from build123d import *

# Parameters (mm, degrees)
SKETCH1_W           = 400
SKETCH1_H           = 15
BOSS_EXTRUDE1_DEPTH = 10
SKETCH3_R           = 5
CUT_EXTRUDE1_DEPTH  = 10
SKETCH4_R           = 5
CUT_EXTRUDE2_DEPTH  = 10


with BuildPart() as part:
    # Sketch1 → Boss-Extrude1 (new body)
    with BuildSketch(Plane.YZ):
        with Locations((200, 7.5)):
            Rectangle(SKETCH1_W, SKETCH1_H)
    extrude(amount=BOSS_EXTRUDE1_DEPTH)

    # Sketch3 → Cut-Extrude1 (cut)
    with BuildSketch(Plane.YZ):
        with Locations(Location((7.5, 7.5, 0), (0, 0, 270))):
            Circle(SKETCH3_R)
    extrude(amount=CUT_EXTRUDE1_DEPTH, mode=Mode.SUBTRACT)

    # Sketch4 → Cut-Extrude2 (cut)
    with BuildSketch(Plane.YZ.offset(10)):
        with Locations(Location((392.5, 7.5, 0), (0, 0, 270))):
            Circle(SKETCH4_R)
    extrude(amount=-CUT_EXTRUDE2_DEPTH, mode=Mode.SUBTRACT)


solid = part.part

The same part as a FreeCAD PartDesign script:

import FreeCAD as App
import Part
import Sketcher

doc = App.newDocument("Part")
body = doc.addObject("PartDesign::Body", "Body")

# Sketch on YZ plane
sketch1 = body.newObject("Sketcher::SketchObject", "Sketch")
sketch1.AttachmentSupport = (doc.getObject("YZ_Plane"), [""])
sketch1.MapMode = "FlatFace"
sketch1.addGeometry(Part.LineSegment(App.Vector(0, 15, 0), App.Vector(0, 0, 0)), False)
sketch1.addGeometry(Part.LineSegment(App.Vector(0, 0, 0), App.Vector(400, 0, 0)), False)
sketch1.addGeometry(Part.LineSegment(App.Vector(400, 0, 0), App.Vector(400, 15, 0)), False)
sketch1.addGeometry(Part.LineSegment(App.Vector(400, 15, 0), App.Vector(0, 15, 0)), False)
sketch1.addConstraint(Sketcher.Constraint("Coincident", 0, 2, 1, 1))
sketch1.addConstraint(Sketcher.Constraint("Coincident", 1, 2, 2, 1))
sketch1.addConstraint(Sketcher.Constraint("Coincident", 2, 2, 3, 1))
sketch1.addConstraint(Sketcher.Constraint("Coincident", 3, 2, 0, 1))
sketch1.addConstraint(Sketcher.Constraint("Vertical", 0))
sketch1.addConstraint(Sketcher.Constraint("Horizontal", 1))
sketch1.addConstraint(Sketcher.Constraint("Vertical", 2))
sketch1.addConstraint(Sketcher.Constraint("Horizontal", 3))
sketch1.addConstraint(Sketcher.Constraint("Coincident", 0, 2, -1, 1))
sketch1.addConstraint(Sketcher.Constraint("DistanceX", 1, 1, 1, 2, 400.0))
sketch1.addConstraint(Sketcher.Constraint("DistanceY", 0, 2, 0, 1, 15.0))
pad1 = body.newObject("PartDesign::Pad", "Pad")
pad1.Profile = sketch1
pad1.Length = 10

# Sketch on YZ plane
sketch2 = body.newObject("Sketcher::SketchObject", "Sketch001")
sketch2.AttachmentSupport = (doc.getObject("YZ_Plane"), [""])
sketch2.MapMode = "FlatFace"
sketch2.addGeometry(Part.Circle(App.Vector(7.5, 7.5, 0), App.Vector(0, 0, 1), 5), False)
sketch2.addConstraint(Sketcher.Constraint("Diameter", 0, 10.0))
sketch2.addConstraint(Sketcher.Constraint("DistanceX", -1, 1, 0, 3, 7.5))
sketch2.addConstraint(Sketcher.Constraint("DistanceY", -1, 1, 0, 3, 7.5))
pocket1 = body.newObject("PartDesign::Pocket", "Pocket")
pocket1.Profile = sketch2
pocket1.Length = 10
pocket1.Reversed = True

# Sketch on YZ plane
sketch3 = body.newObject("Sketcher::SketchObject", "Sketch002")
sketch3.AttachmentSupport = (doc.getObject("YZ_Plane"), [""])
sketch3.MapMode = "FlatFace"
sketch3.AttachmentOffset = App.Placement(App.Vector(0, 0, 10), App.Rotation())
sketch3.addGeometry(Part.Circle(App.Vector(392.5, 7.5, 0), App.Vector(0, 0, 1), 5), False)
sketch3.addConstraint(Sketcher.Constraint("Diameter", 0, 10.0))
sketch3.addConstraint(Sketcher.Constraint("DistanceX", -1, 1, 0, 3, 392.5))
sketch3.addConstraint(Sketcher.Constraint("DistanceY", -1, 1, 0, 3, 7.5))
pocket2 = body.newObject("PartDesign::Pocket", "Pocket001")
pocket2.Profile = sketch3
pocket2.Length = 10

doc.recompute()
